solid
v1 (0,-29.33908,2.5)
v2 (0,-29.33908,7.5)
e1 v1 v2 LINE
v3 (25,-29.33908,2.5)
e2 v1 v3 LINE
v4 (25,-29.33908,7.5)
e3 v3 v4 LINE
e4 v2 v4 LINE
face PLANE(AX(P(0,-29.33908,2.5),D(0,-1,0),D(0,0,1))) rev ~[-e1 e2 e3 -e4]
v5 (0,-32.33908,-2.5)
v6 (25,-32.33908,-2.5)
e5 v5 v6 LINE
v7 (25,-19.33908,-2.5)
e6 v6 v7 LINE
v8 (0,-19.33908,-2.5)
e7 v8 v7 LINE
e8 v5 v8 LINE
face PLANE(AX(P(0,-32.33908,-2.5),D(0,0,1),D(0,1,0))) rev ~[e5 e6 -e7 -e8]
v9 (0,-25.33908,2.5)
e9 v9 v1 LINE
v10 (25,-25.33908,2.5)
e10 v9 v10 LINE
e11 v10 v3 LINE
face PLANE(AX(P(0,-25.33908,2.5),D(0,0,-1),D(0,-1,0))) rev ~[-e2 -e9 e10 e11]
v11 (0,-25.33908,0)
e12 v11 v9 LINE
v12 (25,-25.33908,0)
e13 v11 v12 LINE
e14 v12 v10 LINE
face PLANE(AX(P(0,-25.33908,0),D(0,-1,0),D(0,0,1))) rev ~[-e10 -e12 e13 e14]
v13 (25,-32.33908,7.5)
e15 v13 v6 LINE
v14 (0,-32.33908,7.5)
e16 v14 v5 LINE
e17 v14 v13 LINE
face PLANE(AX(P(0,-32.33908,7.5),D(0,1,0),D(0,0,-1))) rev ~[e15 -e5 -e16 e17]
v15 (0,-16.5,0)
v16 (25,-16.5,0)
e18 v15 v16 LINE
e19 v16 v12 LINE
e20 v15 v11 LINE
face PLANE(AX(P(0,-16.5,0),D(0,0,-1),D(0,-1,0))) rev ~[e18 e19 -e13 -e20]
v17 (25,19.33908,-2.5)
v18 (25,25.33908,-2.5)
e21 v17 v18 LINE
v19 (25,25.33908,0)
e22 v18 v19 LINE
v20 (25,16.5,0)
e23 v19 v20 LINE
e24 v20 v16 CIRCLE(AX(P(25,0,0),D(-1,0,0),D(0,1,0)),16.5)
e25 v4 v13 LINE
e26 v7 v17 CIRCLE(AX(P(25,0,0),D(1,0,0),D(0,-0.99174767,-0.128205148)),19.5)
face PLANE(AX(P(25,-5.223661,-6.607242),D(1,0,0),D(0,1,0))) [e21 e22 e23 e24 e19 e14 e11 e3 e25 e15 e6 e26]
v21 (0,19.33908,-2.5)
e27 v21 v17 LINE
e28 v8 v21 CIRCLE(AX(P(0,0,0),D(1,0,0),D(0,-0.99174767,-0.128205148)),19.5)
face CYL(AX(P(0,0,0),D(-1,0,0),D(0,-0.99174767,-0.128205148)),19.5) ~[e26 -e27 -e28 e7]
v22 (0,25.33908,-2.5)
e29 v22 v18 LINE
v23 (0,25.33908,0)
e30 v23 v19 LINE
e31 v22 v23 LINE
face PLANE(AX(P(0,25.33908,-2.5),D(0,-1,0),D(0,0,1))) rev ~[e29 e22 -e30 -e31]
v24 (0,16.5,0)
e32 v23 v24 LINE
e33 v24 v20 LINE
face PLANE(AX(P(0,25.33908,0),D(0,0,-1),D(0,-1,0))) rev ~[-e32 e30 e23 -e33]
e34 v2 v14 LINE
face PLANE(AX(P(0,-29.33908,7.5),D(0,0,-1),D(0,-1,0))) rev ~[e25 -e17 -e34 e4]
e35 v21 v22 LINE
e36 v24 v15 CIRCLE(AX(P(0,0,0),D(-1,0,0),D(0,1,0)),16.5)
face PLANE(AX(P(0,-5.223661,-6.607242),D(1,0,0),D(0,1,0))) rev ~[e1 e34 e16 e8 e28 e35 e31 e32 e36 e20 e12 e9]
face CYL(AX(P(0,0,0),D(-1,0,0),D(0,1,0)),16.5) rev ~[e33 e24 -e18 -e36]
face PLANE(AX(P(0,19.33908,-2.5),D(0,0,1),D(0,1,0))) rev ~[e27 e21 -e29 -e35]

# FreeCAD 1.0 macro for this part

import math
import FreeCAD as App
import Part
import Sketcher

V = App.Vector

doc = App.newDocument("Part")
body = doc.addObject("PartDesign::Body", "Body")

sketch1 = body.newObject("Sketcher::SketchObject", "Sketch")
sketch1.AttachmentSupport = (doc.getObject("YZ_Plane"), [""])
sketch1.MapMode = "FlatFace"
sketch1.addGeometry(Part.LineSegment(V(-29.33908, 7.5, 0), V(-32.33908, 7.5, 0)), False)
sketch1.addGeometry(Part.LineSegment(V(-32.33908, 7.5, 0), V(-32.33908, -2.5, 0)), False)
sketch1.addGeometry(Part.LineSegment(V(-32.33908, -2.5, 0), V(-19.33908, -2.5, 0)), False)
sketch1.addGeometry(Part.ArcOfCircle(Part.Circle(V(0, 0, 0), V(0, 0, 1), 19.5), math.radians(-172.634113), math.radians(-7.365887)), False)
sketch1.addGeometry(Part.LineSegment(V(19.33908, -2.5, 0), V(25.33908, -2.5, 0)), False)
sketch1.addGeometry(Part.LineSegment(V(25.33908, -2.5, 0), V(25.33908, 0, 0)), False)
sketch1.addGeometry(Part.LineSegment(V(25.33908, 0, 0), V(16.5, 0, 0)), False)
sketch1.addGeometry(Part.ArcOfCircle(Part.Circle(V(0, 0, 0), V(0, 0, 1), 16.5), math.radians(180), math.radians(360)), False)
sketch1.addGeometry(Part.LineSegment(V(-16.5, 0, 0), V(-25.33908, 0, 0)), False)
sketch1.addGeometry(Part.LineSegment(V(-25.33908, 0, 0), V(-25.33908, 2.5, 0)), False)
sketch1.addGeometry(Part.LineSegment(V(-25.33908, 2.5, 0), V(-29.33908, 2.5, 0)), False)
sketch1.addGeometry(Part.LineSegment(V(-29.33908, 2.5, 0), V(-29.33908, 7.5, 0)), False)
sketch1.addConstraint(Sketcher.Constraint("Coincident", 0, 2, 1, 1))
sketch1.addConstraint(Sketcher.Constraint("Coincident", 1, 2, 2, 1))
sketch1.addConstraint(Sketcher.Constraint("Coincident", 2, 2, 3, 1))
sketch1.addConstraint(Sketcher.Constraint("Coincident", 3, 2, 4, 1))
sketch1.addConstraint(Sketcher.Constraint("Coincident", 4, 2, 5, 1))
sketch1.addConstraint(Sketcher.Constraint("Coincident", 5, 2, 6, 1))
sketch1.addConstraint(Sketcher.Constraint("Coincident", 6, 2, 7, 2))
sketch1.addConstraint(Sketcher.Constraint("Coincident", 7, 1, 8, 1))
sketch1.addConstraint(Sketcher.Constraint("Coincident", 8, 2, 9, 1))
sketch1.addConstraint(Sketcher.Constraint("Coincident", 9, 2, 10, 1))
sketch1.addConstraint(Sketcher.Constraint("Coincident", 10, 2, 11, 1))
sketch1.addConstraint(Sketcher.Constraint("Coincident", 11, 2, 0, 1))
sketch1.addConstraint(Sketcher.Constraint("Horizontal", 0))
sketch1.addConstraint(Sketcher.Constraint("Vertical", 1))
sketch1.addConstraint(Sketcher.Constraint("Horizontal", 2))
sketch1.addConstraint(Sketcher.Constraint("Horizontal", 4))
sketch1.addConstraint(Sketcher.Constraint("Vertical", 5))
sketch1.addConstraint(Sketcher.Constraint("Horizontal", 6))
sketch1.addConstraint(Sketcher.Constraint("Horizontal", 8))
sketch1.addConstraint(Sketcher.Constraint("Vertical", 9))
sketch1.addConstraint(Sketcher.Constraint("Horizontal", 10))
sketch1.addConstraint(Sketcher.Constraint("Vertical", 11))
sketch1.addConstraint(Sketcher.Constraint("Coincident", 3, 3, -1, 1))
sketch1.addConstraint(Sketcher.Constraint("Coincident", 7, 3, -1, 1))
sketch1.addConstraint(Sketcher.Constraint("Symmetric", 5, 2, 8, 2, -1, 1))
sketch1.addConstraint(Sketcher.Constraint("PointOnObject", 5, 2, -1))
sketch1.addConstraint(Sketcher.Constraint("Horizontal", 2, 2, 3, 2))
sketch1.addConstraint(Sketcher.Constraint("Equal", 5, 9))
sketch1.addConstraint(Sketcher.Constraint("Radius", 3, 19.5))
sketch1.addConstraint(Sketcher.Constraint("Radius", 7, 16.5))
sketch1.addConstraint(Sketcher.Constraint("DistanceX", 0, 2, 0, 1, 3.0))
sketch1.addConstraint(Sketcher.Constraint("DistanceX", 2, 1, 2, 2, 13.0))
sketch1.addConstraint(Sketcher.Constraint("DistanceX", 4, 1, 4, 2, 6.0))
sketch1.addConstraint(Sketcher.Constraint("DistanceY", 1, 2, 1, 1, 10.0))
sketch1.addConstraint(Sketcher.Constraint("DistanceY", 11, 1, 11, 2, 5.0))
pad1 = body.newObject("PartDesign::Pad", "Pad")
pad1.Profile = sketch1
pad1.Length = 25

doc.recompute()
